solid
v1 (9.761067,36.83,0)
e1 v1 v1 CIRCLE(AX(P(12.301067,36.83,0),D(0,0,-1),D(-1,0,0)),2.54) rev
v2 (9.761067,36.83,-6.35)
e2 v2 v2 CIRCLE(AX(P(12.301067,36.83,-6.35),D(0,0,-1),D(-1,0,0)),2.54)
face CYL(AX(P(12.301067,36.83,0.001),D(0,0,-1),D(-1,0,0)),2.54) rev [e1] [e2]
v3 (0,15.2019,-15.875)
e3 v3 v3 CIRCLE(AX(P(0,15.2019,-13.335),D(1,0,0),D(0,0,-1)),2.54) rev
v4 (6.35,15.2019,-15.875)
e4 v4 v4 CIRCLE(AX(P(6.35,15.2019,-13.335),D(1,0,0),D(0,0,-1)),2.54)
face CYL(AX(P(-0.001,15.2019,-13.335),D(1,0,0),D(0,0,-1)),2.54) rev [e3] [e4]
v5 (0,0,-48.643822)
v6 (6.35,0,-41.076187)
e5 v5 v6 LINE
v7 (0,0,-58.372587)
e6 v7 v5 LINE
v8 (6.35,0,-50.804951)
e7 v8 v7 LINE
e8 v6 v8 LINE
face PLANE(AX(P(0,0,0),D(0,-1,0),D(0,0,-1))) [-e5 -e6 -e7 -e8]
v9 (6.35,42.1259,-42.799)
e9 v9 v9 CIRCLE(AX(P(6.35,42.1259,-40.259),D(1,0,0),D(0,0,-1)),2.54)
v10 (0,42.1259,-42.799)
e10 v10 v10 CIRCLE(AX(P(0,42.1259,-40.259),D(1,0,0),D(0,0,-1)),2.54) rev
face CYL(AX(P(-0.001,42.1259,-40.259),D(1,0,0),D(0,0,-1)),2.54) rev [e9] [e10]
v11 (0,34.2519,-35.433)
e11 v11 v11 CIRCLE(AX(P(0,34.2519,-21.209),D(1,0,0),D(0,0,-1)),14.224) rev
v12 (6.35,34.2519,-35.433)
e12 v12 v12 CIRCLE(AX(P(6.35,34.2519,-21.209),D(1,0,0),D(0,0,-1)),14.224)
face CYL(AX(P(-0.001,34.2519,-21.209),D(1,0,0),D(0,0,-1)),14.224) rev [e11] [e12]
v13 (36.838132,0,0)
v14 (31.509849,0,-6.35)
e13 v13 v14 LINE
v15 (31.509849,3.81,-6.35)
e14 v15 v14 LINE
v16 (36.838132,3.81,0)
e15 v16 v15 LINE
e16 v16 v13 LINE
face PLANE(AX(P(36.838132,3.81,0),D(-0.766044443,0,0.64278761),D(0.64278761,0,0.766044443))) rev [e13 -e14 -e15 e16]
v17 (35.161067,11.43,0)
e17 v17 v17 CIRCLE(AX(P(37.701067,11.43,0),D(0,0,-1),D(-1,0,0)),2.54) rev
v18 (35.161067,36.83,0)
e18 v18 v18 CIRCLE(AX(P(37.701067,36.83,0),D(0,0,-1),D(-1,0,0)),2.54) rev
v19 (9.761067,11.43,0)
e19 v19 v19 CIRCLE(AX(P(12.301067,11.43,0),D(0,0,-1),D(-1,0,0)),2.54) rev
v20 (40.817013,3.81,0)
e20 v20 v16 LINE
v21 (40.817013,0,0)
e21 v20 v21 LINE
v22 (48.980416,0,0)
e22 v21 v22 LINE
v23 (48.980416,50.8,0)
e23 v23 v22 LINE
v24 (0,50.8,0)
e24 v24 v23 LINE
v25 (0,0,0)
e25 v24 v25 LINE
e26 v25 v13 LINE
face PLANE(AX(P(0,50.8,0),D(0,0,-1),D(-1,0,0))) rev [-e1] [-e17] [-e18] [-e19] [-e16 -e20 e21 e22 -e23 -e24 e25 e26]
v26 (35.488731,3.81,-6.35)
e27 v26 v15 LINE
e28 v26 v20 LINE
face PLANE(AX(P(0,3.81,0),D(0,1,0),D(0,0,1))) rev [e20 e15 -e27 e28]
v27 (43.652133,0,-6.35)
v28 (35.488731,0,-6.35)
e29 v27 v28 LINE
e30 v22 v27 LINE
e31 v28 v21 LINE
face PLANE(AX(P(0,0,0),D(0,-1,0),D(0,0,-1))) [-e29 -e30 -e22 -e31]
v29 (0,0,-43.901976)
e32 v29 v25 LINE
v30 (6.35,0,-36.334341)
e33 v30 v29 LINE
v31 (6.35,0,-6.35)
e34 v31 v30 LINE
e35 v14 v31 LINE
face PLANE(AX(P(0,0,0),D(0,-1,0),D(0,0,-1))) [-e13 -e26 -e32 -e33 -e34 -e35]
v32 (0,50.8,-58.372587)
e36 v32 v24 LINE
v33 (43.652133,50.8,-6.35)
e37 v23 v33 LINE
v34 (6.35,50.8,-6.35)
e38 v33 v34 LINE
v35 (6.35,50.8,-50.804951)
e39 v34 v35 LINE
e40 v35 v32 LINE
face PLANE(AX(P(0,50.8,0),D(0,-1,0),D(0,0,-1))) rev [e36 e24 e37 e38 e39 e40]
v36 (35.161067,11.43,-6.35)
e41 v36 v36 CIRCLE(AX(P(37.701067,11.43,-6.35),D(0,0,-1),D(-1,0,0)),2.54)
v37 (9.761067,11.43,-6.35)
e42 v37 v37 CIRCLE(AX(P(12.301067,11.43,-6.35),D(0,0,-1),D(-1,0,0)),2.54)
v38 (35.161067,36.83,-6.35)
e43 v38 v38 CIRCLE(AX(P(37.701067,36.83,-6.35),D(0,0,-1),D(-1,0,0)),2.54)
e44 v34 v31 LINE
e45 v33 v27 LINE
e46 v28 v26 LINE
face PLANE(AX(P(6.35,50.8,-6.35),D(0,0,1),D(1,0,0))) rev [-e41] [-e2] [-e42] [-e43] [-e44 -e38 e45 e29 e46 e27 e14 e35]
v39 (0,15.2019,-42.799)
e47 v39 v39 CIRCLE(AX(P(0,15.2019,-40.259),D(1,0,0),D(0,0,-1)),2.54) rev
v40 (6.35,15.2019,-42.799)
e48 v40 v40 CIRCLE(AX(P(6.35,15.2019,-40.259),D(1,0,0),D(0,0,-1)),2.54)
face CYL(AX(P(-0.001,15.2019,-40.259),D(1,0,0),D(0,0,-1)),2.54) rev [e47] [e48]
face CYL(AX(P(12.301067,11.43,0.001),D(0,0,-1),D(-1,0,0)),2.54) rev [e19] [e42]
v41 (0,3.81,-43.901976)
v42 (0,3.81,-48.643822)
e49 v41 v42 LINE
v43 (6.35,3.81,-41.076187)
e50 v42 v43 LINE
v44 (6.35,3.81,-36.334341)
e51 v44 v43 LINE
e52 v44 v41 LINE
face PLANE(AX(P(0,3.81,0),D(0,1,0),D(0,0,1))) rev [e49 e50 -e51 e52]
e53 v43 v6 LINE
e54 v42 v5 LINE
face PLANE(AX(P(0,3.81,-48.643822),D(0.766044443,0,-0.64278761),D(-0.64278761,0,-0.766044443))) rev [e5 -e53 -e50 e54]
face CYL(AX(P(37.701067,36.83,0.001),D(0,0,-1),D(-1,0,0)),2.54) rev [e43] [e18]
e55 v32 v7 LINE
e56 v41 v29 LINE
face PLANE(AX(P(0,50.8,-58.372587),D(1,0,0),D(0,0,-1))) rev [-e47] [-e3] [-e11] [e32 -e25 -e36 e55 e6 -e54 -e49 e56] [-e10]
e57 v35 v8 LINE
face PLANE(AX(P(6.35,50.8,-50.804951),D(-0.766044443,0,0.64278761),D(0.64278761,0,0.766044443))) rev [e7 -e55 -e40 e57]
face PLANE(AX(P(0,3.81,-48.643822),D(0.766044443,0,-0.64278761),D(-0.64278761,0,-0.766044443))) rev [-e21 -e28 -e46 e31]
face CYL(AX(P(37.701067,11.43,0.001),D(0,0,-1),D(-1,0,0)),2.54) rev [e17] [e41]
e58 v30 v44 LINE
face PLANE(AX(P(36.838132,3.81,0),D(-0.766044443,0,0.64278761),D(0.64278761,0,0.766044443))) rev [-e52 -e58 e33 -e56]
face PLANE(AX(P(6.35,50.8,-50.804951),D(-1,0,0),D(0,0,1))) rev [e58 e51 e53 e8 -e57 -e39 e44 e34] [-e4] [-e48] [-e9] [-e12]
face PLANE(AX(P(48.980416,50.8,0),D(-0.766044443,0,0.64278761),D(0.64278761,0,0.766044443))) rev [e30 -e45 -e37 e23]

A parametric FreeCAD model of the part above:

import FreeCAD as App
import Part
import Sketcher
Q = App.Units.Quantity

doc = App.newDocument("Part")
body = doc.addObject("PartDesign::Body", "Body")

# Sketch on XZ plane
sketch1 = body.newObject("Sketcher::SketchObject", "Sketch")
sketch1.AttachmentSupport = (doc.getObject("XZ_Plane"), [""])
sketch1.MapMode = "FlatFace"
sketch1.addGeometry(Part.LineSegment(App.Vector(0, -58, 0), App.Vector(0, 0, 0)), False)
sketch1.addGeometry(Part.LineSegment(App.Vector(0, 0, 0), App.Vector(49, 0, 0)), False)
sketch1.addGeometry(Part.LineSegment(App.Vector(49, 0, 0), App.Vector(44, -6, 0)), False)
sketch1.addGeometry(Part.LineSegment(App.Vector(44, -6, 0), App.Vector(6, -6, 0)), False)
sketch1.addGeometry(Part.LineSegment(App.Vector(6, -6, 0), App.Vector(6, -51, 0)), False)
sketch1.addGeometry(Part.LineSegment(App.Vector(6, -51, 0), App.Vector(0, -58, 0)), False)
sketch1.addConstraint(Sketcher.Constraint("Coincident", 0, 2, 1, 1))
sketch1.addConstraint(Sketcher.Constraint("Coincident", 1, 2, 2, 1))
sketch1.addConstraint(Sketcher.Constraint("Coincident", 2, 2, 3, 1))
sketch1.addConstraint(Sketcher.Constraint("Coincident", 3, 2, 4, 1))
sketch1.addConstraint(Sketcher.Constraint("Coincident", 4, 2, 5, 1))
sketch1.addConstraint(Sketcher.Constraint("Coincident", 5, 2, 0, 1))
sketch1.addConstraint(Sketcher.Constraint("Vertical", 0))
sketch1.addConstraint(Sketcher.Constraint("Horizontal", 1))
sketch1.addConstraint(Sketcher.Constraint("Horizontal", 3))
sketch1.addConstraint(Sketcher.Constraint("Vertical", 4))
sketch1.addConstraint(Sketcher.Constraint("Coincident", 0, 2, -1, 1))
sketch1.addConstraint(Sketcher.Constraint("Parallel", 2, 5))
sketch1.addConstraint(Sketcher.Constraint("Angle", 2, Q("-130 deg")))
sketch1.addConstraint(Sketcher.Constraint("DistanceY", 2, 2, -1, 1, Q("0.25 in")))
sketch1.addConstraint(Sketcher.Constraint("DistanceX", -1, 1, 3, 2, Q("0.25 in")))
sketch1.addConstraint(Sketcher.Constraint("DistanceY", 4, 2, 4, 1, Q("44.454951 mm")))
sketch1.addConstraint(Sketcher.Constraint("DistanceX", 1, 1, 1, 2, Q("48.980416 mm")))
pad1 = body.newObject("PartDesign::Pad", "Pad")
pad1.Profile = sketch1
pad1.Length = Q("2 in")
pad1.Reversed = True

# Sketch on XY plane
sketch2 = body.newObject("Sketcher::SketchObject", "Sketch001")
sketch2.AttachmentSupport = (doc.getObject("XY_Plane"), [""])
sketch2.MapMode = "FlatFace"
sketch2.AttachmentOffset = App.Placement(App.Vector(0, 0, -0.25 * 25.4), App.Rotation())
sketch2.addGeometry(Part.Circle(App.Vector(37.7, 36.8, 0), App.Vector(0, 0, 1), 2.5), False)
sketch2.addConstraint(Sketcher.Constraint("Diameter", 0, Q("0.2 in")))
sketch2.addConstraint(Sketcher.Constraint("DistanceY", -1, 1, 0, 3, Q("1.45 in")))
sketch2.addConstraint(Sketcher.Constraint("DistanceX", -1, 1, 0, 3, Q("37.701067 mm")))
pocket1 = body.newObject("PartDesign::Pocket", "Pocket")
pocket1.Profile = sketch2
pocket1.Type = "UpToFirst"
pocket1.Reversed = True

# Sketch on XY plane
sketch3 = body.newObject("Sketcher::SketchObject", "Sketch002")
sketch3.AttachmentSupport = (doc.getObject("XY_Plane"), [""])
sketch3.MapMode = "FlatFace"
sketch3.AttachmentOffset = App.Placement(App.Vector(0, 0, -0.25 * 25.4), App.Rotation())
sketch3.addGeometry(Part.Circle(App.Vector(12.3, 36.8, 0), App.Vector(0, 0, 1), 2.5), False)
sketch3.addConstraint(Sketcher.Constraint("Diameter", 0, Q("0.2 in")))
sketch3.addConstraint(Sketcher.Constraint("DistanceY", -1, 1, 0, 3, Q("1.45 in")))
sketch3.addConstraint(Sketcher.Constraint("DistanceX", -1, 1, 0, 3, Q("12.301067 mm")))
pocket2 = body.newObject("PartDesign::Pocket", "Pocket001")
pocket2.Profile = sketch3
pocket2.Type = "UpToFirst"
pocket2.Reversed = True

# Sketch on XY plane
sketch4 = body.newObject("Sketcher::SketchObject", "Sketch003")
sketch4.AttachmentSupport = (doc.getObject("XY_Plane"), [""])
sketch4.MapMode = "FlatFace"
sketch4.AttachmentOffset = App.Placement(App.Vector(0, 0, -0.25 * 25.4), App.Rotation())
sketch4.addGeometry(Part.Circle(App.Vector(37.7, 11.4, 0), App.Vector(0, 0, 1), 2.5), False)
sketch4.addConstraint(Sketcher.Constraint("Diameter", 0, Q("0.2 in")))
sketch4.addConstraint(Sketcher.Constraint("DistanceY", -1, 1, 0, 3, Q("0.45 in")))
sketch4.addConstraint(Sketcher.Constraint("DistanceX", -1, 1, 0, 3, Q("37.701067 mm")))
pocket3 = body.newObject("PartDesign::Pocket", "Pocket002")
pocket3.Profile = sketch4
pocket3.Type = "UpToFirst"
pocket3.Reversed = True

# Sketch on XY plane
sketch5 = body.newObject("Sketcher::SketchObject", "Sketch004")
sketch5.AttachmentSupport = (doc.getObject("XY_Plane"), [""])
sketch5.MapMode = "FlatFace"
sketch5.AttachmentOffset = App.Placement(App.Vector(0, 0, -0.25 * 25.4), App.Rotation())
sketch5.addGeometry(Part.Circle(App.Vector(12.3, 11.4, 0), App.Vector(0, 0, 1), 2.5), False)
sketch5.addConstraint(Sketcher.Constraint("Diameter", 0, Q("0.2 in")))
sketch5.addConstraint(Sketcher.Constraint("DistanceY", -1, 1, 0, 3, Q("0.45 in")))
sketch5.addConstraint(Sketcher.Constraint("DistanceX", -1, 1, 0, 3, Q("12.301067 mm")))
pocket4 = body.newObject("PartDesign::Pocket", "Pocket003")
pocket4.Profile = sketch5
pocket4.Type = "UpToFirst"
pocket4.Reversed = True

# Sketch on YZ plane
sketch6 = body.newObject("Sketcher::SketchObject", "Sketch005")
sketch6.AttachmentSupport = (doc.getObject("YZ_Plane"), [""])
sketch6.MapMode = "FlatFace"
sketch6.AttachmentOffset = App.Placement(App.Vector(0, 0, 0.25 * 25.4), App.Rotation())
sketch6.addGeometry(Part.Circle(App.Vector(15.2, -13.3, 0), App.Vector(0, 0, 1), 2.5), False)
sketch6.addConstraint(Sketcher.Constraint("Diameter", 0, Q("0.2 in")))
sketch6.addConstraint(Sketcher.Constraint("DistanceY", 0, 3, -1, 1, Q("0.525 in")))
sketch6.addConstraint(Sketcher.Constraint("DistanceX", -1, 1, 0, 3, Q("0.5985 in")))
pocket5 = body.newObject("PartDesign::Pocket", "Pocket004")
pocket5.Profile = sketch6
pocket5.Type = "UpToFirst"

# Sketch on YZ plane
sketch7 = body.newObject("Sketcher::SketchObject", "Sketch006")
sketch7.AttachmentSupport = (doc.getObject("YZ_Plane"), [""])
sketch7.MapMode = "FlatFace"
sketch7.AttachmentOffset = App.Placement(App.Vector(0, 0, 0.25 * 25.4), App.Rotation())
sketch7.addGeometry(Part.Circle(App.Vector(34, -21, 0), App.Vector(0, 0, 1), 14), False)
sketch7.addConstraint(Sketcher.Constraint("Diameter", 0, Q("1.12 in")))
sketch7.addConstraint(Sketcher.Constraint("DistanceY", 0, 3, -1, 1, Q("0.835 in")))
sketch7.addConstraint(Sketcher.Constraint("DistanceX", -1, 1, 0, 3, Q("1.3485 in")))
pocket6 = body.newObject("PartDesign::Pocket", "Pocket005")
pocket6.Profile = sketch7
pocket6.Type = "UpToFirst"

# Sketch on YZ plane
sketch8 = body.newObject("Sketcher::SketchObject", "Sketch007")
sketch8.AttachmentSupport = (doc.getObject("YZ_Plane"), [""])
sketch8.MapMode = "FlatFace"
sketch8.AttachmentOffset = App.Placement(App.Vector(0, 0, 0.25 * 25.4), App.Rotation())
sketch8.addGeometry(Part.Circle(App.Vector(15.2, -40.3, 0), App.Vector(0, 0, 1), 2.5), False)
sketch8.addConstraint(Sketcher.Constraint("Diameter", 0, Q("0.2 in")))
sketch8.addConstraint(Sketcher.Constraint("DistanceY", 0, 3, -1, 1, Q("1.585 in")))
sketch8.addConstraint(Sketcher.Constraint("DistanceX", -1, 1, 0, 3, Q("0.5985 in")))
pocket7 = body.newObject("PartDesign::Pocket", "Pocket006")
pocket7.Profile = sketch8
pocket7.Type = "UpToFirst"

# Sketch on YZ plane
sketch9 = body.newObject("Sketcher::SketchObject", "Sketch008")
sketch9.AttachmentSupport = (doc.getObject("YZ_Plane"), [""])
sketch9.MapMode = "FlatFace"
sketch9.AttachmentOffset = App.Placement(App.Vector(0, 0, 0.25 * 25.4), App.Rotation())
sketch9.addGeometry(Part.Circle(App.Vector(42.1, -40.3, 0), App.Vector(0, 0, 1), 2.5), False)
sketch9.addConstraint(Sketcher.Constraint("Diameter", 0, Q("0.2 in")))
sketch9.addConstraint(Sketcher.Constraint("DistanceY", 0, 3, -1, 1, Q("1.585 in")))
sketch9.addConstraint(Sketcher.Constraint("DistanceX", -1, 1, 0, 3, Q("1.6585 in")))
pocket8 = body.newObject("PartDesign::Pocket", "Pocket007")
pocket8.Profile = sketch9
pocket8.Type = "UpToFirst"

# Sketch on XZ plane
sketch10 = body.newObject("Sketcher::SketchObject", "Sketch009")
sketch10.AttachmentSupport = (doc.getObject("XZ_Plane"), [""])
sketch10.MapMode = "FlatFace"
sketch10.addGeometry(Part.LineSegment(App.Vector(0, -48.6, 0), App.Vector(40.8, 0, 0)), False)
sketch10.addGeometry(Part.LineSegment(App.Vector(40.8, 0, 0), App.Vector(36.8, 0, 0)), False)
sketch10.addGeometry(Part.LineSegment(App.Vector(36.8, 0, 0), App.Vector(0, -43.9, 0)), False)
sketch10.addGeometry(Part.LineSegment(App.Vector(0, -43.9, 0), App.Vector(0, -48.6, 0)), False)
sketch10.addConstraint(Sketcher.Constraint("Coincident", 0, 2, 1, 1))
sketch10.addConstraint(Sketcher.Constraint("Coincident", 1, 2, 2, 1))
sketch10.addConstraint(Sketcher.Constraint("Coincident", 2, 2, 3, 1))
sketch10.addConstraint(Sketcher.Constraint("Coincident", 3, 2, 0, 1))
sketch10.addConstraint(Sketcher.Constraint("Horizontal", 1))
sketch10.addConstraint(Sketcher.Constraint("Vertical", 3))
sketch10.addConstraint(Sketcher.Constraint("PointOnObject", 0, 2, -1))
sketch10.addConstraint(Sketcher.Constraint("PointOnObject", 2, 2, -2))
sketch10.addConstraint(Sketcher.Constraint("Parallel", 0, 2))
sketch10.addConstraint(Sketcher.Constraint("Angle", 0, Q("50 deg")))
sketch10.addConstraint(Sketcher.Constraint("Distance", 0, Q("2.5 in")))
sketch10.addConstraint(Sketcher.Constraint("DistanceX", 1, 2, 1, 1, Q("3.978881 mm")))
pocket9 = body.newObject("PartDesign::Pocket", "Pocket008")
pocket9.Profile = sketch10
pocket9.Length = Q("0.15 in")

doc.recompute()
